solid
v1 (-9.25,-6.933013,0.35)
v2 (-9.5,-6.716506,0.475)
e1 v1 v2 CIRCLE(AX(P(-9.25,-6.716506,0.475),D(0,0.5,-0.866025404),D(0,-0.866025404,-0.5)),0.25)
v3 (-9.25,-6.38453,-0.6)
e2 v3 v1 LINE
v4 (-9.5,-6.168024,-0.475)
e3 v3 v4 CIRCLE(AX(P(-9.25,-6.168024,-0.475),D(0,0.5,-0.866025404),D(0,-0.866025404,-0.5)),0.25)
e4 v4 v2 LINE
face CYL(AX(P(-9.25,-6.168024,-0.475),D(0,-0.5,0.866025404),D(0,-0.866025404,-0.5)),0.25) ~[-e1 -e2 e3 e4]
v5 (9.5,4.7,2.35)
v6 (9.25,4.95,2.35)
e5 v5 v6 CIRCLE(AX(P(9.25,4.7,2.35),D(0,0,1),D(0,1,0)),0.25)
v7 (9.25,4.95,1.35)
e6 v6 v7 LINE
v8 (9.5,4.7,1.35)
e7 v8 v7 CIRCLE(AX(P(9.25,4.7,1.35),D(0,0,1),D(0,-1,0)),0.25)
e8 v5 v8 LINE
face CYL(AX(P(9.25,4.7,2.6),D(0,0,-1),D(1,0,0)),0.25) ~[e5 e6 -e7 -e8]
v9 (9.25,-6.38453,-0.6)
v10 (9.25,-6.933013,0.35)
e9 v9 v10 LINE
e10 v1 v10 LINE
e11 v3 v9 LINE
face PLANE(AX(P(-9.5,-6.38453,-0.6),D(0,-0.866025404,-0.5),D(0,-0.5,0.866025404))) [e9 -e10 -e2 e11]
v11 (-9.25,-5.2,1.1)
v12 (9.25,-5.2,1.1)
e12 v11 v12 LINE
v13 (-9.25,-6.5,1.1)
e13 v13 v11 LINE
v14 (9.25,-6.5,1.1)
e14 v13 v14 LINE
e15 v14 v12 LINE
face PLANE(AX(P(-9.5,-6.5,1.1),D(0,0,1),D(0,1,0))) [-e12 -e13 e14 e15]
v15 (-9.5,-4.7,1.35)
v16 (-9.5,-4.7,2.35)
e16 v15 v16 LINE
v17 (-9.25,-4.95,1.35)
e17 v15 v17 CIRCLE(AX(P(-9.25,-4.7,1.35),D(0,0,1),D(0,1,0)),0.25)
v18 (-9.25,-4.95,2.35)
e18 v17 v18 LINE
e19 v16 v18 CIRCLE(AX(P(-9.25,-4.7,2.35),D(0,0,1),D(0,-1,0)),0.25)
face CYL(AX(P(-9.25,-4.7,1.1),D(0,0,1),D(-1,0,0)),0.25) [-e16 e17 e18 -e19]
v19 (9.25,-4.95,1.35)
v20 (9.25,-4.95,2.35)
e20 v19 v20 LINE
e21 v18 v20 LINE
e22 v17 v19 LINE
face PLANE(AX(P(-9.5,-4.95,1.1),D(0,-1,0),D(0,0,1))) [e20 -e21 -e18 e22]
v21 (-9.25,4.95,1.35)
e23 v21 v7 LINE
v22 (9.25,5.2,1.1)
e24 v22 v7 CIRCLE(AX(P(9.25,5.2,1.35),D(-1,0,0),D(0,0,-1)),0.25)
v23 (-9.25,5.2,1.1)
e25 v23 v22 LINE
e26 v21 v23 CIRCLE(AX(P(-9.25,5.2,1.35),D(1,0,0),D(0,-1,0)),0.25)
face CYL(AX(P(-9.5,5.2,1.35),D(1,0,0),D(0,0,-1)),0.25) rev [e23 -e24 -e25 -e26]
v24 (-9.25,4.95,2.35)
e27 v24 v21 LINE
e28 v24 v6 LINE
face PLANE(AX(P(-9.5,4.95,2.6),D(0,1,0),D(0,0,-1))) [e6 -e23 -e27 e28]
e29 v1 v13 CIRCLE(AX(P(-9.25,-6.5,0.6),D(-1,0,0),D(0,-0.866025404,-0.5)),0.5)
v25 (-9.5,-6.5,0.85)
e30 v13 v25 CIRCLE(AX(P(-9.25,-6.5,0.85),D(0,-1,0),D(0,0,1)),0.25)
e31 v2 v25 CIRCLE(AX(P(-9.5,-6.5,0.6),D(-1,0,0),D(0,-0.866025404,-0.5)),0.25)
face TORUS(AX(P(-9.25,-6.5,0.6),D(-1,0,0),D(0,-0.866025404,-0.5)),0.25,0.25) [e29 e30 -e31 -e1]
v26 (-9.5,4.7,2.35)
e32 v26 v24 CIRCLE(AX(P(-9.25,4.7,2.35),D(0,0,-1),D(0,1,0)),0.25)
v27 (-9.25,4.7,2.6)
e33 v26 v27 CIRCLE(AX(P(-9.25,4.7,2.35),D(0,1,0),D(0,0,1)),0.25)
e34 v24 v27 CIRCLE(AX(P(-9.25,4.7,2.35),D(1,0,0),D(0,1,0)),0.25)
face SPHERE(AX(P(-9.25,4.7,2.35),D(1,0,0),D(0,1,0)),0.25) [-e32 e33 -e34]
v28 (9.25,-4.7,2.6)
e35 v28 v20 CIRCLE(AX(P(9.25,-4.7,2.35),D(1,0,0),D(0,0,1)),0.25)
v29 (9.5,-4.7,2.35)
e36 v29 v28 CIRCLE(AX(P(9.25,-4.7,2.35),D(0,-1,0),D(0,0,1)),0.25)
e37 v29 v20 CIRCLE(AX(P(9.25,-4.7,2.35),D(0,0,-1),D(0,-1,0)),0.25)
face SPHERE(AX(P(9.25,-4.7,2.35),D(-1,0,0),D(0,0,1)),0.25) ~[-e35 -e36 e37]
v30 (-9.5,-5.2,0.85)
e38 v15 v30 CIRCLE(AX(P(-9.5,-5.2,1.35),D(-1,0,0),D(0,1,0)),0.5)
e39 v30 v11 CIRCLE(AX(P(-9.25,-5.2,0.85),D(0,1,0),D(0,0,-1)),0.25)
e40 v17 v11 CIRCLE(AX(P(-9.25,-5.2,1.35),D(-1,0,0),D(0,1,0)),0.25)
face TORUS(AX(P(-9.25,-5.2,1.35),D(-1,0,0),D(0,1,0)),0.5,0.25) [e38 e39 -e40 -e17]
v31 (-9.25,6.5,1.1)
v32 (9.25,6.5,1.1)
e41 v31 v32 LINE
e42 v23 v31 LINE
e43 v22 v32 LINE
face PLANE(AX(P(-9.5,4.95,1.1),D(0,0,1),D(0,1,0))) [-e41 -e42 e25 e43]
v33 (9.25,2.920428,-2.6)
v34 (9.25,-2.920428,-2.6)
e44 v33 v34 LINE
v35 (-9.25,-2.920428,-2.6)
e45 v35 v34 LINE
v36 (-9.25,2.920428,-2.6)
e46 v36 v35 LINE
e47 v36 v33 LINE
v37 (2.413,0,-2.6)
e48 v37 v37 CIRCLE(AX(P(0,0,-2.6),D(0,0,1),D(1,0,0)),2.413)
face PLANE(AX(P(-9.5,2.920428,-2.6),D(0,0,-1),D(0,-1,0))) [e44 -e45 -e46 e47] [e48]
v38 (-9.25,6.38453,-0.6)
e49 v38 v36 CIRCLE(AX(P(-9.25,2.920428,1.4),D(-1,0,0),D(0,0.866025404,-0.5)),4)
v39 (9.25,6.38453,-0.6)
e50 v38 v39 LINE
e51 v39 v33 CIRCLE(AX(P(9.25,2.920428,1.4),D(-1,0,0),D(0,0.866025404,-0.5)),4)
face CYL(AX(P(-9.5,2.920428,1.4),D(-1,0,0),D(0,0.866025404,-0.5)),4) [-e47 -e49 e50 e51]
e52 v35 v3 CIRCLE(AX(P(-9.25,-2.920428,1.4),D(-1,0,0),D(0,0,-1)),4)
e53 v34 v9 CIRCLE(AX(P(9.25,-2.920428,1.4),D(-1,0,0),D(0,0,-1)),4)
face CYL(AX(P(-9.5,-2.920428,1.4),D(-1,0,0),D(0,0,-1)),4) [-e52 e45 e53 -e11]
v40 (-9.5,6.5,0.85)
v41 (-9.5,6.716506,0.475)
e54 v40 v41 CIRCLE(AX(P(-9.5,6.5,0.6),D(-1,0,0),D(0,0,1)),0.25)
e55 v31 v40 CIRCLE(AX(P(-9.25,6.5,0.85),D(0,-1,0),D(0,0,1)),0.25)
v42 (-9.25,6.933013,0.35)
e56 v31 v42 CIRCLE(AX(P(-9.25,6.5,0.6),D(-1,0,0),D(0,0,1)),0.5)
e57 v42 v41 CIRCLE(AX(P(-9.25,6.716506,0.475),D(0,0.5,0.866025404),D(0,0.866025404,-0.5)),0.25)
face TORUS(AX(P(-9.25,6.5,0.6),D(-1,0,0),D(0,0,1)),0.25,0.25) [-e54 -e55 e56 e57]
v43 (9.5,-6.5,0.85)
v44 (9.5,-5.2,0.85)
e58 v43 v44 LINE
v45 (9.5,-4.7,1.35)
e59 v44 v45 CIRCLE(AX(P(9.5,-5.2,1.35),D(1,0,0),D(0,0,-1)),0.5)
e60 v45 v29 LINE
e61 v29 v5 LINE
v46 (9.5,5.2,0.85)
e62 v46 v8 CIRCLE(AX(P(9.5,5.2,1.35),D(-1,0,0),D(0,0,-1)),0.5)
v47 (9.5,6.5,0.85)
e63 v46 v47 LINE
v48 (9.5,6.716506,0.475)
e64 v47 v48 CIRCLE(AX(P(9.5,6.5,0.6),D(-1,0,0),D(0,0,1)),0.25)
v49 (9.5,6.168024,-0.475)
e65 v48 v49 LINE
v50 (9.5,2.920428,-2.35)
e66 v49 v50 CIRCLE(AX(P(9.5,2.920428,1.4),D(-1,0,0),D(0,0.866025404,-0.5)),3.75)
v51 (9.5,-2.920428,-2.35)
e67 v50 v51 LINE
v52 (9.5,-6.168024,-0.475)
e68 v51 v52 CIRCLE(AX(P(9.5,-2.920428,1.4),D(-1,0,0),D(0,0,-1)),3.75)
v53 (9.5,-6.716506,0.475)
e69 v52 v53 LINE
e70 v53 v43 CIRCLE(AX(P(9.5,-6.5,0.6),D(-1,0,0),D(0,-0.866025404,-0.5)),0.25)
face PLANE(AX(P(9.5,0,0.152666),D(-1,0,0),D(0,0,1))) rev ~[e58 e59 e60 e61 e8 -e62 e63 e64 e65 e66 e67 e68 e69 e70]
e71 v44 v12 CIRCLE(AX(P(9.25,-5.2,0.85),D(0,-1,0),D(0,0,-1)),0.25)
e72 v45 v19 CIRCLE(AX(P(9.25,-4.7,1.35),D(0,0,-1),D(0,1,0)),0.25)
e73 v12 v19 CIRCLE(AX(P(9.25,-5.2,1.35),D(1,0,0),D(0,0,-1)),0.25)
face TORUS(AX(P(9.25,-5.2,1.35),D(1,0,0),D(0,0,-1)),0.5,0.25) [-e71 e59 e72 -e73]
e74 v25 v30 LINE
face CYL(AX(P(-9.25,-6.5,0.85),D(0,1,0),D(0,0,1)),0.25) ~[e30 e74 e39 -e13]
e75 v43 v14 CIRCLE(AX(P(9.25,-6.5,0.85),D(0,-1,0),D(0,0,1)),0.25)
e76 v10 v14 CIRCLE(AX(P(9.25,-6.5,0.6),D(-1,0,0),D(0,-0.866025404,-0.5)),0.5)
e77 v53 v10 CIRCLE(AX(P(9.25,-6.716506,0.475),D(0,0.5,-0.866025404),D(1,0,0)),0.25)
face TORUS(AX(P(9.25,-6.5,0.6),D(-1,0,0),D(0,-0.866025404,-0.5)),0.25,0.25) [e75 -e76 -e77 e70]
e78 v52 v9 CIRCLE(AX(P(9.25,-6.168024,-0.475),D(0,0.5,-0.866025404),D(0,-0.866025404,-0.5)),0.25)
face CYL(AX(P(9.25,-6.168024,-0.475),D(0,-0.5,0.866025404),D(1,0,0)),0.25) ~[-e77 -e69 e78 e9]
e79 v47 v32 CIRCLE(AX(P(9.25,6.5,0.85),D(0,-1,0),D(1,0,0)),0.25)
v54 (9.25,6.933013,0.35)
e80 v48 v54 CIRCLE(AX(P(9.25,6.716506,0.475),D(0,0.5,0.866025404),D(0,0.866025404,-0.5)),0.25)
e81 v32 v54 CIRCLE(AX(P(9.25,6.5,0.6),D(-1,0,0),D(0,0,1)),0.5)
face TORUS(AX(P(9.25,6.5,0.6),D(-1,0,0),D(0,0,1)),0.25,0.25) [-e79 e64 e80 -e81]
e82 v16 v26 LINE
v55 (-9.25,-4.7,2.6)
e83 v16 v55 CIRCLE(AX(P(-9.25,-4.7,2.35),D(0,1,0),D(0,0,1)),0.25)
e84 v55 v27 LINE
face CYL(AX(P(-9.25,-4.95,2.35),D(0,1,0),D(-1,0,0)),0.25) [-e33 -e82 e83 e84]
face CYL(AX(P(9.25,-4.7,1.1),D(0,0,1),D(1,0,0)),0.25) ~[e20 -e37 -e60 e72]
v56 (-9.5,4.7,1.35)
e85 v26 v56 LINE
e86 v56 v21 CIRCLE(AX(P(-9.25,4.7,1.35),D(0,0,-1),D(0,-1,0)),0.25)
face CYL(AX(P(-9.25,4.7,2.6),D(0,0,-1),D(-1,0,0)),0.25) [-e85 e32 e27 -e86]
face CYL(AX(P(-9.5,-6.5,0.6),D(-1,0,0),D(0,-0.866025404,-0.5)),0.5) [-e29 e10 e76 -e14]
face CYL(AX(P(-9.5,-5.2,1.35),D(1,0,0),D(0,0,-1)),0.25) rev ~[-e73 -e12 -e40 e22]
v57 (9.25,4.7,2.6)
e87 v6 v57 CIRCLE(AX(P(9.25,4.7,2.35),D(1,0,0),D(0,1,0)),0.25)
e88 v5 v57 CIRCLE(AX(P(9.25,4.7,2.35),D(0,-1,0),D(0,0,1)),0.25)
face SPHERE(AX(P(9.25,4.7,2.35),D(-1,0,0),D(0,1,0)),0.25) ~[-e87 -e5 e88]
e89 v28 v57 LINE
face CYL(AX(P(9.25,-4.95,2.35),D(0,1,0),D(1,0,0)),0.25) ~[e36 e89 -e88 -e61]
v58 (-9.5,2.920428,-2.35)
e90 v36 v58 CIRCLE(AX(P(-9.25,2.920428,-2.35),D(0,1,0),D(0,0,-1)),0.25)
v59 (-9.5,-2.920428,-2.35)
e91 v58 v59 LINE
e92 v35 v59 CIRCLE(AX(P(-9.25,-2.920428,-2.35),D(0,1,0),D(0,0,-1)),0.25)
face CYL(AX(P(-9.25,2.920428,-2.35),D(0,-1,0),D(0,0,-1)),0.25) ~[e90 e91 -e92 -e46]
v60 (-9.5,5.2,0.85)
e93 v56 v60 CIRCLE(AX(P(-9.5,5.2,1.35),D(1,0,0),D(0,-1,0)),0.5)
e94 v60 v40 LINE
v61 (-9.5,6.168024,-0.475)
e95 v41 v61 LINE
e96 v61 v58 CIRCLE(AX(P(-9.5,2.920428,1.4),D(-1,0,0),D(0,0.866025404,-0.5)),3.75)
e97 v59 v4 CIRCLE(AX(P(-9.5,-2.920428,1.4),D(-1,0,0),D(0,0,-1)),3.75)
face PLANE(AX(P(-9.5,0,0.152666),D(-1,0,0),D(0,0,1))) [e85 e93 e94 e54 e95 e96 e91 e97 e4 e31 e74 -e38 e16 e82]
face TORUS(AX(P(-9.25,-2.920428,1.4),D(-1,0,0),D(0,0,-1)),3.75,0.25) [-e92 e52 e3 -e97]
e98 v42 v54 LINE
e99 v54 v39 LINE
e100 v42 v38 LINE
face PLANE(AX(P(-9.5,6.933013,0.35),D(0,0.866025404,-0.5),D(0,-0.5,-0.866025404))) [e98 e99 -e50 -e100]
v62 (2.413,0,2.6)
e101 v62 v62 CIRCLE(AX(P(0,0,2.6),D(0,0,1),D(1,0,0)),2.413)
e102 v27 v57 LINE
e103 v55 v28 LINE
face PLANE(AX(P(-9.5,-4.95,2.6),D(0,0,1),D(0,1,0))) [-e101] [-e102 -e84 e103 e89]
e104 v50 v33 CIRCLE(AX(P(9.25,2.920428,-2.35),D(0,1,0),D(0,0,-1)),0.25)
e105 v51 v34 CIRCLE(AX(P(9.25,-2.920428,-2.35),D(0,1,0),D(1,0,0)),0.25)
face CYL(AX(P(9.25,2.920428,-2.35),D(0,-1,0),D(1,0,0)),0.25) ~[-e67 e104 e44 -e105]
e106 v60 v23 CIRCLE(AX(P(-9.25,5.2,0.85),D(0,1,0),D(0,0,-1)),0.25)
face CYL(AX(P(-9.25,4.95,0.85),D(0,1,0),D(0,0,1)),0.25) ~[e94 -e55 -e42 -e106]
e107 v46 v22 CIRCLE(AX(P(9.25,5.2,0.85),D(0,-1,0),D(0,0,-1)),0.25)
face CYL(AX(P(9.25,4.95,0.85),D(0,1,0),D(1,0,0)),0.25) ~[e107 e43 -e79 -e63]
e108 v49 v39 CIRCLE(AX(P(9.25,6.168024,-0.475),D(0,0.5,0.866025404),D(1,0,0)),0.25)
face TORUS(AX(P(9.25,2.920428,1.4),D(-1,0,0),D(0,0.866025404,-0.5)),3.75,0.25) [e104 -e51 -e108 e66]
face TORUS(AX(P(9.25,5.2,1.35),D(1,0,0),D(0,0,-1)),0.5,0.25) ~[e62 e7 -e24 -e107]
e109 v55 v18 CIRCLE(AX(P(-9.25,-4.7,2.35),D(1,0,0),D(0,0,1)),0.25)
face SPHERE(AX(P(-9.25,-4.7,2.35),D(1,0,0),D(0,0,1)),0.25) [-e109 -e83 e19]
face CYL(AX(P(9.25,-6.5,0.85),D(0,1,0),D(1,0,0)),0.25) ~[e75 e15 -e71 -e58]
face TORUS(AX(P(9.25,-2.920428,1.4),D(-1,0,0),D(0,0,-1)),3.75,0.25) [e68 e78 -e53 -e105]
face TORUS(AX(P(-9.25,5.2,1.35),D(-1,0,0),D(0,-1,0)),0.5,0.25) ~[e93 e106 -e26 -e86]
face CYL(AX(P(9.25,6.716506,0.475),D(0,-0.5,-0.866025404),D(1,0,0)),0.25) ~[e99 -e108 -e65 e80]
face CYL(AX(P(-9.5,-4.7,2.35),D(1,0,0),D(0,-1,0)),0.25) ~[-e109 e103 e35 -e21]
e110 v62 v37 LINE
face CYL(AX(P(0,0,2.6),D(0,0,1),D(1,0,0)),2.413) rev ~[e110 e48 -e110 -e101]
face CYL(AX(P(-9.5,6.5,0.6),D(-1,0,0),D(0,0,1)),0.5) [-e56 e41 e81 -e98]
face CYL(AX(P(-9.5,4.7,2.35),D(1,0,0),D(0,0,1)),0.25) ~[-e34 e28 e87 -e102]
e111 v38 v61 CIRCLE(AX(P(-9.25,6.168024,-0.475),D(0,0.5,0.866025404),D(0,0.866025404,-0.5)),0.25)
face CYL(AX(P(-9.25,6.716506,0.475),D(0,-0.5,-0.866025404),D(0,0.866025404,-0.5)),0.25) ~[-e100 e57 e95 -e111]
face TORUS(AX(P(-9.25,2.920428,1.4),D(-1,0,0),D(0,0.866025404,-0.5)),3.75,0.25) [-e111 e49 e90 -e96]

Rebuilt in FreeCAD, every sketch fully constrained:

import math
import FreeCAD as App
import Part
import Sketcher

V = App.Vector
Q = App.Units.Quantity


def edges_at(feature, points):
    """Names of the edges that pass closest to the given points."""
    edges = feature.Shape.Edges
    near = lambda p: min(range(len(edges)), key=lambda i: edges[i].distToShape(Part.Vertex(*p))[0])
    return sorted({f"Edge{near(p) + 1}" for p in points})

doc = App.newDocument("Part")
body = doc.addObject("PartDesign::Body", "Body")

sketch1 = doc.addObject("Sketcher::SketchObject", "Sketch")
body.addObject(sketch1)
sketch1.AttachmentSupport = (doc.YZ_Plane, [""])
sketch1.MapMode = "FlatFace"
sketch1.addGeometry(Part.LineSegment(V(6.4, -0.6, 0), V(6.9, 0.3, 0)), False)
sketch1.addGeometry(Part.ArcOfCircle(Part.Circle(V(6.5, 0.6, 0), V(0, 0, 1), 0.5), math.radians(-30), math.radians(90)), False)
sketch1.addGeometry(Part.LineSegment(V(6.5, 1.1, 0), V(5, 1.1, 0)), False)
sketch1.addGeometry(Part.LineSegment(V(5, 1.1, 0), V(5, 2.6, 0)), False)
sketch1.addGeometry(Part.LineSegment(V(5, 2.6, 0), V(-5, 2.6, 0)), False)
sketch1.addGeometry(Part.LineSegment(V(-5, 2.6, 0), V(-5, 1.1, 0)), False)
sketch1.addGeometry(Part.LineSegment(V(-5, 1.1, 0), V(-6.5, 1.1, 0)), False)
sketch1.addGeometry(Part.ArcOfCircle(Part.Circle(V(-6.5, 0.6, 0), V(0, 0, 1), 0.5), math.radians(90), math.radians(210)), False)
sketch1.addGeometry(Part.LineSegment(V(-6.9, 0.3, 0), V(-6.4, -0.6, 0)), False)
sketch1.addGeometry(Part.ArcOfCircle(Part.Circle(V(-2.9, 1.4, 0), V(0, 0, 1), 4), math.radians(-150), math.radians(-90)), False)
sketch1.addGeometry(Part.LineSegment(V(-2.9, -2.6, 0), V(2.9, -2.6, 0)), False)
sketch1.addGeometry(Part.ArcOfCircle(Part.Circle(V(2.9, 1.4, 0), V(0, 0, 1), 4), math.radians(-90), math.radians(-30)), False)
sketch1.addConstraint(Sketcher.Constraint("Tangent", 0, 2, 1, 1))
sketch1.addConstraint(Sketcher.Constraint("Tangent", 1, 2, 2, 1))
sketch1.addConstraint(Sketcher.Constraint("Coincident", 2, 2, 3, 1))
sketch1.addConstraint(Sketcher.Constraint("Coincident", 3, 2, 4, 1))
sketch1.addConstraint(Sketcher.Constraint("Coincident", 4, 2, 5, 1))
sketch1.addConstraint(Sketcher.Constraint("Coincident", 5, 2, 6, 1))
sketch1.addConstraint(Sketcher.Constraint("Tangent", 6, 2, 7, 1))
sketch1.addConstraint(Sketcher.Constraint("Tangent", 7, 2, 8, 1))
sketch1.addConstraint(Sketcher.Constraint("Tangent", 8, 2, 9, 1))
sketch1.addConstraint(Sketcher.Constraint("Tangent", 9, 2, 10, 1))
sketch1.addConstraint(Sketcher.Constraint("Tangent", 10, 2, 11, 1))
sketch1.addConstraint(Sketcher.Constraint("Tangent", 11, 2, 0, 1))
sketch1.addConstraint(Sketcher.Constraint("Horizontal", 2))
sketch1.addConstraint(Sketcher.Constraint("Vertical", 3))
sketch1.addConstraint(Sketcher.Constraint("Horizontal", 4))
sketch1.addConstraint(Sketcher.Constraint("Vertical", 5))
sketch1.addConstraint(Sketcher.Constraint("Horizontal", 6))
sketch1.addConstraint(Sketcher.Constraint("Horizontal", 10))
sketch1.addConstraint(Sketcher.Constraint("Equal", 1, 7))
sketch1.addConstraint(Sketcher.Constraint("Equal", 9, 11))
sketch1.addConstraint(Sketcher.Constraint("Symmetric", 1, 3, 7, 3, -2))
sketch1.addConstraint(Sketcher.Constraint("Horizontal", 0, 2, 7, 2))
sketch1.addConstraint(Sketcher.Constraint("Equal", 2, 6))
sketch1.addConstraint(Sketcher.Constraint("Radius", 9, 4.0))
sketch1.addConstraint(Sketcher.Constraint("Radius", 1, 0.5))
sketch1.addConstraint(Sketcher.Constraint("Angle", 0, Q("60 deg")))
sketch1.addConstraint(Sketcher.Constraint("DistanceX", 4, 2, 4, 1, 9.9))
sketch1.addConstraint(Sketcher.Constraint("DistanceY", 3, 1, 3, 2, 1.5))
sketch1.addConstraint(Sketcher.Constraint("DistanceX", 7, 3, 1, 3, 13.0))
sketch1.addConstraint(Sketcher.Constraint("DistanceY", -1, 1, 1, 3, 0.6))
sketch1.addConstraint(Sketcher.Constraint("DistanceY", -1, 1, 9, 3, 1.4))
pad1 = doc.addObject("PartDesign::Pad", "Pad")
body.addObject(pad1)
pad1.Profile = sketch1
pad1.Type = "TwoLengths"
pad1.Length = 9.5
pad1.Length2 = 9.5

sketch2 = doc.addObject("Sketcher::SketchObject", "Sketch001")
body.addObject(sketch2)
sketch2.AttachmentSupport = (doc.XY_Plane, [""])
sketch2.MapMode = "FlatFace"
sketch2.AttachmentOffset = App.Placement(V(0, 0, 2.6), App.Rotation())
sketch2.addGeometry(Part.Circle(V(0, 0, 0), V(0, 0, 1), 2.4), False)
sketch2.addConstraint(Sketcher.Constraint("Coincident", 0, 3, -1, 1))
sketch2.addConstraint(Sketcher.Constraint("Diameter", 0, 4.826))
pocket1 = doc.addObject("PartDesign::Pocket", "Pocket")
body.addObject(pocket1)
pocket1.Profile = sketch2
pocket1.Type = "ThroughAll"
doc.recompute()

fillet = doc.addObject("PartDesign::Fillet", "Fillet")
body.addObject(fillet)
fillet.Base = (pocket1, edges_at(pocket1, [
    (-9.5, 4.92, -2.064),
    (-9.5, 6.659, -0.125),
    (-9.5, 6.933, 0.85),
    (-9.5, 5.725, 1.1),
    (0, -4.95, 1.1),
    (0, -4.95, 2.6),
    (0, 4.95, 2.6),
    (0, 4.95, 1.1),
    (-9.5, 4.95, 1.85),
    (-9.5, 0, 2.6),
    (-9.5, -4.95, 1.85),
    (-9.5, -5.725, 1.1),
    (9.5, -4.92, -2.064),
    (9.5, 0, -2.6),
    (9.5, 4.92, -2.064),
    (-9.5, -6.933, 0.85),
    (9.5, 6.659, -0.125),
    (9.5, 6.933, 0.85),
    (9.5, 5.725, 1.1),
    (9.5, 4.95, 1.85),
    (9.5, 0, 2.6),
    (9.5, -4.95, 1.85),
    (9.5, -5.725, 1.1),
    (9.5, -6.933, 0.85),
    (9.5, -6.659, -0.125),
    (-9.5, -6.659, -0.125),
    (-9.5, -4.92, -2.064),
    (-9.5, 0, -2.6),
]))
fillet.Radius = 0.25

doc.recompute()
